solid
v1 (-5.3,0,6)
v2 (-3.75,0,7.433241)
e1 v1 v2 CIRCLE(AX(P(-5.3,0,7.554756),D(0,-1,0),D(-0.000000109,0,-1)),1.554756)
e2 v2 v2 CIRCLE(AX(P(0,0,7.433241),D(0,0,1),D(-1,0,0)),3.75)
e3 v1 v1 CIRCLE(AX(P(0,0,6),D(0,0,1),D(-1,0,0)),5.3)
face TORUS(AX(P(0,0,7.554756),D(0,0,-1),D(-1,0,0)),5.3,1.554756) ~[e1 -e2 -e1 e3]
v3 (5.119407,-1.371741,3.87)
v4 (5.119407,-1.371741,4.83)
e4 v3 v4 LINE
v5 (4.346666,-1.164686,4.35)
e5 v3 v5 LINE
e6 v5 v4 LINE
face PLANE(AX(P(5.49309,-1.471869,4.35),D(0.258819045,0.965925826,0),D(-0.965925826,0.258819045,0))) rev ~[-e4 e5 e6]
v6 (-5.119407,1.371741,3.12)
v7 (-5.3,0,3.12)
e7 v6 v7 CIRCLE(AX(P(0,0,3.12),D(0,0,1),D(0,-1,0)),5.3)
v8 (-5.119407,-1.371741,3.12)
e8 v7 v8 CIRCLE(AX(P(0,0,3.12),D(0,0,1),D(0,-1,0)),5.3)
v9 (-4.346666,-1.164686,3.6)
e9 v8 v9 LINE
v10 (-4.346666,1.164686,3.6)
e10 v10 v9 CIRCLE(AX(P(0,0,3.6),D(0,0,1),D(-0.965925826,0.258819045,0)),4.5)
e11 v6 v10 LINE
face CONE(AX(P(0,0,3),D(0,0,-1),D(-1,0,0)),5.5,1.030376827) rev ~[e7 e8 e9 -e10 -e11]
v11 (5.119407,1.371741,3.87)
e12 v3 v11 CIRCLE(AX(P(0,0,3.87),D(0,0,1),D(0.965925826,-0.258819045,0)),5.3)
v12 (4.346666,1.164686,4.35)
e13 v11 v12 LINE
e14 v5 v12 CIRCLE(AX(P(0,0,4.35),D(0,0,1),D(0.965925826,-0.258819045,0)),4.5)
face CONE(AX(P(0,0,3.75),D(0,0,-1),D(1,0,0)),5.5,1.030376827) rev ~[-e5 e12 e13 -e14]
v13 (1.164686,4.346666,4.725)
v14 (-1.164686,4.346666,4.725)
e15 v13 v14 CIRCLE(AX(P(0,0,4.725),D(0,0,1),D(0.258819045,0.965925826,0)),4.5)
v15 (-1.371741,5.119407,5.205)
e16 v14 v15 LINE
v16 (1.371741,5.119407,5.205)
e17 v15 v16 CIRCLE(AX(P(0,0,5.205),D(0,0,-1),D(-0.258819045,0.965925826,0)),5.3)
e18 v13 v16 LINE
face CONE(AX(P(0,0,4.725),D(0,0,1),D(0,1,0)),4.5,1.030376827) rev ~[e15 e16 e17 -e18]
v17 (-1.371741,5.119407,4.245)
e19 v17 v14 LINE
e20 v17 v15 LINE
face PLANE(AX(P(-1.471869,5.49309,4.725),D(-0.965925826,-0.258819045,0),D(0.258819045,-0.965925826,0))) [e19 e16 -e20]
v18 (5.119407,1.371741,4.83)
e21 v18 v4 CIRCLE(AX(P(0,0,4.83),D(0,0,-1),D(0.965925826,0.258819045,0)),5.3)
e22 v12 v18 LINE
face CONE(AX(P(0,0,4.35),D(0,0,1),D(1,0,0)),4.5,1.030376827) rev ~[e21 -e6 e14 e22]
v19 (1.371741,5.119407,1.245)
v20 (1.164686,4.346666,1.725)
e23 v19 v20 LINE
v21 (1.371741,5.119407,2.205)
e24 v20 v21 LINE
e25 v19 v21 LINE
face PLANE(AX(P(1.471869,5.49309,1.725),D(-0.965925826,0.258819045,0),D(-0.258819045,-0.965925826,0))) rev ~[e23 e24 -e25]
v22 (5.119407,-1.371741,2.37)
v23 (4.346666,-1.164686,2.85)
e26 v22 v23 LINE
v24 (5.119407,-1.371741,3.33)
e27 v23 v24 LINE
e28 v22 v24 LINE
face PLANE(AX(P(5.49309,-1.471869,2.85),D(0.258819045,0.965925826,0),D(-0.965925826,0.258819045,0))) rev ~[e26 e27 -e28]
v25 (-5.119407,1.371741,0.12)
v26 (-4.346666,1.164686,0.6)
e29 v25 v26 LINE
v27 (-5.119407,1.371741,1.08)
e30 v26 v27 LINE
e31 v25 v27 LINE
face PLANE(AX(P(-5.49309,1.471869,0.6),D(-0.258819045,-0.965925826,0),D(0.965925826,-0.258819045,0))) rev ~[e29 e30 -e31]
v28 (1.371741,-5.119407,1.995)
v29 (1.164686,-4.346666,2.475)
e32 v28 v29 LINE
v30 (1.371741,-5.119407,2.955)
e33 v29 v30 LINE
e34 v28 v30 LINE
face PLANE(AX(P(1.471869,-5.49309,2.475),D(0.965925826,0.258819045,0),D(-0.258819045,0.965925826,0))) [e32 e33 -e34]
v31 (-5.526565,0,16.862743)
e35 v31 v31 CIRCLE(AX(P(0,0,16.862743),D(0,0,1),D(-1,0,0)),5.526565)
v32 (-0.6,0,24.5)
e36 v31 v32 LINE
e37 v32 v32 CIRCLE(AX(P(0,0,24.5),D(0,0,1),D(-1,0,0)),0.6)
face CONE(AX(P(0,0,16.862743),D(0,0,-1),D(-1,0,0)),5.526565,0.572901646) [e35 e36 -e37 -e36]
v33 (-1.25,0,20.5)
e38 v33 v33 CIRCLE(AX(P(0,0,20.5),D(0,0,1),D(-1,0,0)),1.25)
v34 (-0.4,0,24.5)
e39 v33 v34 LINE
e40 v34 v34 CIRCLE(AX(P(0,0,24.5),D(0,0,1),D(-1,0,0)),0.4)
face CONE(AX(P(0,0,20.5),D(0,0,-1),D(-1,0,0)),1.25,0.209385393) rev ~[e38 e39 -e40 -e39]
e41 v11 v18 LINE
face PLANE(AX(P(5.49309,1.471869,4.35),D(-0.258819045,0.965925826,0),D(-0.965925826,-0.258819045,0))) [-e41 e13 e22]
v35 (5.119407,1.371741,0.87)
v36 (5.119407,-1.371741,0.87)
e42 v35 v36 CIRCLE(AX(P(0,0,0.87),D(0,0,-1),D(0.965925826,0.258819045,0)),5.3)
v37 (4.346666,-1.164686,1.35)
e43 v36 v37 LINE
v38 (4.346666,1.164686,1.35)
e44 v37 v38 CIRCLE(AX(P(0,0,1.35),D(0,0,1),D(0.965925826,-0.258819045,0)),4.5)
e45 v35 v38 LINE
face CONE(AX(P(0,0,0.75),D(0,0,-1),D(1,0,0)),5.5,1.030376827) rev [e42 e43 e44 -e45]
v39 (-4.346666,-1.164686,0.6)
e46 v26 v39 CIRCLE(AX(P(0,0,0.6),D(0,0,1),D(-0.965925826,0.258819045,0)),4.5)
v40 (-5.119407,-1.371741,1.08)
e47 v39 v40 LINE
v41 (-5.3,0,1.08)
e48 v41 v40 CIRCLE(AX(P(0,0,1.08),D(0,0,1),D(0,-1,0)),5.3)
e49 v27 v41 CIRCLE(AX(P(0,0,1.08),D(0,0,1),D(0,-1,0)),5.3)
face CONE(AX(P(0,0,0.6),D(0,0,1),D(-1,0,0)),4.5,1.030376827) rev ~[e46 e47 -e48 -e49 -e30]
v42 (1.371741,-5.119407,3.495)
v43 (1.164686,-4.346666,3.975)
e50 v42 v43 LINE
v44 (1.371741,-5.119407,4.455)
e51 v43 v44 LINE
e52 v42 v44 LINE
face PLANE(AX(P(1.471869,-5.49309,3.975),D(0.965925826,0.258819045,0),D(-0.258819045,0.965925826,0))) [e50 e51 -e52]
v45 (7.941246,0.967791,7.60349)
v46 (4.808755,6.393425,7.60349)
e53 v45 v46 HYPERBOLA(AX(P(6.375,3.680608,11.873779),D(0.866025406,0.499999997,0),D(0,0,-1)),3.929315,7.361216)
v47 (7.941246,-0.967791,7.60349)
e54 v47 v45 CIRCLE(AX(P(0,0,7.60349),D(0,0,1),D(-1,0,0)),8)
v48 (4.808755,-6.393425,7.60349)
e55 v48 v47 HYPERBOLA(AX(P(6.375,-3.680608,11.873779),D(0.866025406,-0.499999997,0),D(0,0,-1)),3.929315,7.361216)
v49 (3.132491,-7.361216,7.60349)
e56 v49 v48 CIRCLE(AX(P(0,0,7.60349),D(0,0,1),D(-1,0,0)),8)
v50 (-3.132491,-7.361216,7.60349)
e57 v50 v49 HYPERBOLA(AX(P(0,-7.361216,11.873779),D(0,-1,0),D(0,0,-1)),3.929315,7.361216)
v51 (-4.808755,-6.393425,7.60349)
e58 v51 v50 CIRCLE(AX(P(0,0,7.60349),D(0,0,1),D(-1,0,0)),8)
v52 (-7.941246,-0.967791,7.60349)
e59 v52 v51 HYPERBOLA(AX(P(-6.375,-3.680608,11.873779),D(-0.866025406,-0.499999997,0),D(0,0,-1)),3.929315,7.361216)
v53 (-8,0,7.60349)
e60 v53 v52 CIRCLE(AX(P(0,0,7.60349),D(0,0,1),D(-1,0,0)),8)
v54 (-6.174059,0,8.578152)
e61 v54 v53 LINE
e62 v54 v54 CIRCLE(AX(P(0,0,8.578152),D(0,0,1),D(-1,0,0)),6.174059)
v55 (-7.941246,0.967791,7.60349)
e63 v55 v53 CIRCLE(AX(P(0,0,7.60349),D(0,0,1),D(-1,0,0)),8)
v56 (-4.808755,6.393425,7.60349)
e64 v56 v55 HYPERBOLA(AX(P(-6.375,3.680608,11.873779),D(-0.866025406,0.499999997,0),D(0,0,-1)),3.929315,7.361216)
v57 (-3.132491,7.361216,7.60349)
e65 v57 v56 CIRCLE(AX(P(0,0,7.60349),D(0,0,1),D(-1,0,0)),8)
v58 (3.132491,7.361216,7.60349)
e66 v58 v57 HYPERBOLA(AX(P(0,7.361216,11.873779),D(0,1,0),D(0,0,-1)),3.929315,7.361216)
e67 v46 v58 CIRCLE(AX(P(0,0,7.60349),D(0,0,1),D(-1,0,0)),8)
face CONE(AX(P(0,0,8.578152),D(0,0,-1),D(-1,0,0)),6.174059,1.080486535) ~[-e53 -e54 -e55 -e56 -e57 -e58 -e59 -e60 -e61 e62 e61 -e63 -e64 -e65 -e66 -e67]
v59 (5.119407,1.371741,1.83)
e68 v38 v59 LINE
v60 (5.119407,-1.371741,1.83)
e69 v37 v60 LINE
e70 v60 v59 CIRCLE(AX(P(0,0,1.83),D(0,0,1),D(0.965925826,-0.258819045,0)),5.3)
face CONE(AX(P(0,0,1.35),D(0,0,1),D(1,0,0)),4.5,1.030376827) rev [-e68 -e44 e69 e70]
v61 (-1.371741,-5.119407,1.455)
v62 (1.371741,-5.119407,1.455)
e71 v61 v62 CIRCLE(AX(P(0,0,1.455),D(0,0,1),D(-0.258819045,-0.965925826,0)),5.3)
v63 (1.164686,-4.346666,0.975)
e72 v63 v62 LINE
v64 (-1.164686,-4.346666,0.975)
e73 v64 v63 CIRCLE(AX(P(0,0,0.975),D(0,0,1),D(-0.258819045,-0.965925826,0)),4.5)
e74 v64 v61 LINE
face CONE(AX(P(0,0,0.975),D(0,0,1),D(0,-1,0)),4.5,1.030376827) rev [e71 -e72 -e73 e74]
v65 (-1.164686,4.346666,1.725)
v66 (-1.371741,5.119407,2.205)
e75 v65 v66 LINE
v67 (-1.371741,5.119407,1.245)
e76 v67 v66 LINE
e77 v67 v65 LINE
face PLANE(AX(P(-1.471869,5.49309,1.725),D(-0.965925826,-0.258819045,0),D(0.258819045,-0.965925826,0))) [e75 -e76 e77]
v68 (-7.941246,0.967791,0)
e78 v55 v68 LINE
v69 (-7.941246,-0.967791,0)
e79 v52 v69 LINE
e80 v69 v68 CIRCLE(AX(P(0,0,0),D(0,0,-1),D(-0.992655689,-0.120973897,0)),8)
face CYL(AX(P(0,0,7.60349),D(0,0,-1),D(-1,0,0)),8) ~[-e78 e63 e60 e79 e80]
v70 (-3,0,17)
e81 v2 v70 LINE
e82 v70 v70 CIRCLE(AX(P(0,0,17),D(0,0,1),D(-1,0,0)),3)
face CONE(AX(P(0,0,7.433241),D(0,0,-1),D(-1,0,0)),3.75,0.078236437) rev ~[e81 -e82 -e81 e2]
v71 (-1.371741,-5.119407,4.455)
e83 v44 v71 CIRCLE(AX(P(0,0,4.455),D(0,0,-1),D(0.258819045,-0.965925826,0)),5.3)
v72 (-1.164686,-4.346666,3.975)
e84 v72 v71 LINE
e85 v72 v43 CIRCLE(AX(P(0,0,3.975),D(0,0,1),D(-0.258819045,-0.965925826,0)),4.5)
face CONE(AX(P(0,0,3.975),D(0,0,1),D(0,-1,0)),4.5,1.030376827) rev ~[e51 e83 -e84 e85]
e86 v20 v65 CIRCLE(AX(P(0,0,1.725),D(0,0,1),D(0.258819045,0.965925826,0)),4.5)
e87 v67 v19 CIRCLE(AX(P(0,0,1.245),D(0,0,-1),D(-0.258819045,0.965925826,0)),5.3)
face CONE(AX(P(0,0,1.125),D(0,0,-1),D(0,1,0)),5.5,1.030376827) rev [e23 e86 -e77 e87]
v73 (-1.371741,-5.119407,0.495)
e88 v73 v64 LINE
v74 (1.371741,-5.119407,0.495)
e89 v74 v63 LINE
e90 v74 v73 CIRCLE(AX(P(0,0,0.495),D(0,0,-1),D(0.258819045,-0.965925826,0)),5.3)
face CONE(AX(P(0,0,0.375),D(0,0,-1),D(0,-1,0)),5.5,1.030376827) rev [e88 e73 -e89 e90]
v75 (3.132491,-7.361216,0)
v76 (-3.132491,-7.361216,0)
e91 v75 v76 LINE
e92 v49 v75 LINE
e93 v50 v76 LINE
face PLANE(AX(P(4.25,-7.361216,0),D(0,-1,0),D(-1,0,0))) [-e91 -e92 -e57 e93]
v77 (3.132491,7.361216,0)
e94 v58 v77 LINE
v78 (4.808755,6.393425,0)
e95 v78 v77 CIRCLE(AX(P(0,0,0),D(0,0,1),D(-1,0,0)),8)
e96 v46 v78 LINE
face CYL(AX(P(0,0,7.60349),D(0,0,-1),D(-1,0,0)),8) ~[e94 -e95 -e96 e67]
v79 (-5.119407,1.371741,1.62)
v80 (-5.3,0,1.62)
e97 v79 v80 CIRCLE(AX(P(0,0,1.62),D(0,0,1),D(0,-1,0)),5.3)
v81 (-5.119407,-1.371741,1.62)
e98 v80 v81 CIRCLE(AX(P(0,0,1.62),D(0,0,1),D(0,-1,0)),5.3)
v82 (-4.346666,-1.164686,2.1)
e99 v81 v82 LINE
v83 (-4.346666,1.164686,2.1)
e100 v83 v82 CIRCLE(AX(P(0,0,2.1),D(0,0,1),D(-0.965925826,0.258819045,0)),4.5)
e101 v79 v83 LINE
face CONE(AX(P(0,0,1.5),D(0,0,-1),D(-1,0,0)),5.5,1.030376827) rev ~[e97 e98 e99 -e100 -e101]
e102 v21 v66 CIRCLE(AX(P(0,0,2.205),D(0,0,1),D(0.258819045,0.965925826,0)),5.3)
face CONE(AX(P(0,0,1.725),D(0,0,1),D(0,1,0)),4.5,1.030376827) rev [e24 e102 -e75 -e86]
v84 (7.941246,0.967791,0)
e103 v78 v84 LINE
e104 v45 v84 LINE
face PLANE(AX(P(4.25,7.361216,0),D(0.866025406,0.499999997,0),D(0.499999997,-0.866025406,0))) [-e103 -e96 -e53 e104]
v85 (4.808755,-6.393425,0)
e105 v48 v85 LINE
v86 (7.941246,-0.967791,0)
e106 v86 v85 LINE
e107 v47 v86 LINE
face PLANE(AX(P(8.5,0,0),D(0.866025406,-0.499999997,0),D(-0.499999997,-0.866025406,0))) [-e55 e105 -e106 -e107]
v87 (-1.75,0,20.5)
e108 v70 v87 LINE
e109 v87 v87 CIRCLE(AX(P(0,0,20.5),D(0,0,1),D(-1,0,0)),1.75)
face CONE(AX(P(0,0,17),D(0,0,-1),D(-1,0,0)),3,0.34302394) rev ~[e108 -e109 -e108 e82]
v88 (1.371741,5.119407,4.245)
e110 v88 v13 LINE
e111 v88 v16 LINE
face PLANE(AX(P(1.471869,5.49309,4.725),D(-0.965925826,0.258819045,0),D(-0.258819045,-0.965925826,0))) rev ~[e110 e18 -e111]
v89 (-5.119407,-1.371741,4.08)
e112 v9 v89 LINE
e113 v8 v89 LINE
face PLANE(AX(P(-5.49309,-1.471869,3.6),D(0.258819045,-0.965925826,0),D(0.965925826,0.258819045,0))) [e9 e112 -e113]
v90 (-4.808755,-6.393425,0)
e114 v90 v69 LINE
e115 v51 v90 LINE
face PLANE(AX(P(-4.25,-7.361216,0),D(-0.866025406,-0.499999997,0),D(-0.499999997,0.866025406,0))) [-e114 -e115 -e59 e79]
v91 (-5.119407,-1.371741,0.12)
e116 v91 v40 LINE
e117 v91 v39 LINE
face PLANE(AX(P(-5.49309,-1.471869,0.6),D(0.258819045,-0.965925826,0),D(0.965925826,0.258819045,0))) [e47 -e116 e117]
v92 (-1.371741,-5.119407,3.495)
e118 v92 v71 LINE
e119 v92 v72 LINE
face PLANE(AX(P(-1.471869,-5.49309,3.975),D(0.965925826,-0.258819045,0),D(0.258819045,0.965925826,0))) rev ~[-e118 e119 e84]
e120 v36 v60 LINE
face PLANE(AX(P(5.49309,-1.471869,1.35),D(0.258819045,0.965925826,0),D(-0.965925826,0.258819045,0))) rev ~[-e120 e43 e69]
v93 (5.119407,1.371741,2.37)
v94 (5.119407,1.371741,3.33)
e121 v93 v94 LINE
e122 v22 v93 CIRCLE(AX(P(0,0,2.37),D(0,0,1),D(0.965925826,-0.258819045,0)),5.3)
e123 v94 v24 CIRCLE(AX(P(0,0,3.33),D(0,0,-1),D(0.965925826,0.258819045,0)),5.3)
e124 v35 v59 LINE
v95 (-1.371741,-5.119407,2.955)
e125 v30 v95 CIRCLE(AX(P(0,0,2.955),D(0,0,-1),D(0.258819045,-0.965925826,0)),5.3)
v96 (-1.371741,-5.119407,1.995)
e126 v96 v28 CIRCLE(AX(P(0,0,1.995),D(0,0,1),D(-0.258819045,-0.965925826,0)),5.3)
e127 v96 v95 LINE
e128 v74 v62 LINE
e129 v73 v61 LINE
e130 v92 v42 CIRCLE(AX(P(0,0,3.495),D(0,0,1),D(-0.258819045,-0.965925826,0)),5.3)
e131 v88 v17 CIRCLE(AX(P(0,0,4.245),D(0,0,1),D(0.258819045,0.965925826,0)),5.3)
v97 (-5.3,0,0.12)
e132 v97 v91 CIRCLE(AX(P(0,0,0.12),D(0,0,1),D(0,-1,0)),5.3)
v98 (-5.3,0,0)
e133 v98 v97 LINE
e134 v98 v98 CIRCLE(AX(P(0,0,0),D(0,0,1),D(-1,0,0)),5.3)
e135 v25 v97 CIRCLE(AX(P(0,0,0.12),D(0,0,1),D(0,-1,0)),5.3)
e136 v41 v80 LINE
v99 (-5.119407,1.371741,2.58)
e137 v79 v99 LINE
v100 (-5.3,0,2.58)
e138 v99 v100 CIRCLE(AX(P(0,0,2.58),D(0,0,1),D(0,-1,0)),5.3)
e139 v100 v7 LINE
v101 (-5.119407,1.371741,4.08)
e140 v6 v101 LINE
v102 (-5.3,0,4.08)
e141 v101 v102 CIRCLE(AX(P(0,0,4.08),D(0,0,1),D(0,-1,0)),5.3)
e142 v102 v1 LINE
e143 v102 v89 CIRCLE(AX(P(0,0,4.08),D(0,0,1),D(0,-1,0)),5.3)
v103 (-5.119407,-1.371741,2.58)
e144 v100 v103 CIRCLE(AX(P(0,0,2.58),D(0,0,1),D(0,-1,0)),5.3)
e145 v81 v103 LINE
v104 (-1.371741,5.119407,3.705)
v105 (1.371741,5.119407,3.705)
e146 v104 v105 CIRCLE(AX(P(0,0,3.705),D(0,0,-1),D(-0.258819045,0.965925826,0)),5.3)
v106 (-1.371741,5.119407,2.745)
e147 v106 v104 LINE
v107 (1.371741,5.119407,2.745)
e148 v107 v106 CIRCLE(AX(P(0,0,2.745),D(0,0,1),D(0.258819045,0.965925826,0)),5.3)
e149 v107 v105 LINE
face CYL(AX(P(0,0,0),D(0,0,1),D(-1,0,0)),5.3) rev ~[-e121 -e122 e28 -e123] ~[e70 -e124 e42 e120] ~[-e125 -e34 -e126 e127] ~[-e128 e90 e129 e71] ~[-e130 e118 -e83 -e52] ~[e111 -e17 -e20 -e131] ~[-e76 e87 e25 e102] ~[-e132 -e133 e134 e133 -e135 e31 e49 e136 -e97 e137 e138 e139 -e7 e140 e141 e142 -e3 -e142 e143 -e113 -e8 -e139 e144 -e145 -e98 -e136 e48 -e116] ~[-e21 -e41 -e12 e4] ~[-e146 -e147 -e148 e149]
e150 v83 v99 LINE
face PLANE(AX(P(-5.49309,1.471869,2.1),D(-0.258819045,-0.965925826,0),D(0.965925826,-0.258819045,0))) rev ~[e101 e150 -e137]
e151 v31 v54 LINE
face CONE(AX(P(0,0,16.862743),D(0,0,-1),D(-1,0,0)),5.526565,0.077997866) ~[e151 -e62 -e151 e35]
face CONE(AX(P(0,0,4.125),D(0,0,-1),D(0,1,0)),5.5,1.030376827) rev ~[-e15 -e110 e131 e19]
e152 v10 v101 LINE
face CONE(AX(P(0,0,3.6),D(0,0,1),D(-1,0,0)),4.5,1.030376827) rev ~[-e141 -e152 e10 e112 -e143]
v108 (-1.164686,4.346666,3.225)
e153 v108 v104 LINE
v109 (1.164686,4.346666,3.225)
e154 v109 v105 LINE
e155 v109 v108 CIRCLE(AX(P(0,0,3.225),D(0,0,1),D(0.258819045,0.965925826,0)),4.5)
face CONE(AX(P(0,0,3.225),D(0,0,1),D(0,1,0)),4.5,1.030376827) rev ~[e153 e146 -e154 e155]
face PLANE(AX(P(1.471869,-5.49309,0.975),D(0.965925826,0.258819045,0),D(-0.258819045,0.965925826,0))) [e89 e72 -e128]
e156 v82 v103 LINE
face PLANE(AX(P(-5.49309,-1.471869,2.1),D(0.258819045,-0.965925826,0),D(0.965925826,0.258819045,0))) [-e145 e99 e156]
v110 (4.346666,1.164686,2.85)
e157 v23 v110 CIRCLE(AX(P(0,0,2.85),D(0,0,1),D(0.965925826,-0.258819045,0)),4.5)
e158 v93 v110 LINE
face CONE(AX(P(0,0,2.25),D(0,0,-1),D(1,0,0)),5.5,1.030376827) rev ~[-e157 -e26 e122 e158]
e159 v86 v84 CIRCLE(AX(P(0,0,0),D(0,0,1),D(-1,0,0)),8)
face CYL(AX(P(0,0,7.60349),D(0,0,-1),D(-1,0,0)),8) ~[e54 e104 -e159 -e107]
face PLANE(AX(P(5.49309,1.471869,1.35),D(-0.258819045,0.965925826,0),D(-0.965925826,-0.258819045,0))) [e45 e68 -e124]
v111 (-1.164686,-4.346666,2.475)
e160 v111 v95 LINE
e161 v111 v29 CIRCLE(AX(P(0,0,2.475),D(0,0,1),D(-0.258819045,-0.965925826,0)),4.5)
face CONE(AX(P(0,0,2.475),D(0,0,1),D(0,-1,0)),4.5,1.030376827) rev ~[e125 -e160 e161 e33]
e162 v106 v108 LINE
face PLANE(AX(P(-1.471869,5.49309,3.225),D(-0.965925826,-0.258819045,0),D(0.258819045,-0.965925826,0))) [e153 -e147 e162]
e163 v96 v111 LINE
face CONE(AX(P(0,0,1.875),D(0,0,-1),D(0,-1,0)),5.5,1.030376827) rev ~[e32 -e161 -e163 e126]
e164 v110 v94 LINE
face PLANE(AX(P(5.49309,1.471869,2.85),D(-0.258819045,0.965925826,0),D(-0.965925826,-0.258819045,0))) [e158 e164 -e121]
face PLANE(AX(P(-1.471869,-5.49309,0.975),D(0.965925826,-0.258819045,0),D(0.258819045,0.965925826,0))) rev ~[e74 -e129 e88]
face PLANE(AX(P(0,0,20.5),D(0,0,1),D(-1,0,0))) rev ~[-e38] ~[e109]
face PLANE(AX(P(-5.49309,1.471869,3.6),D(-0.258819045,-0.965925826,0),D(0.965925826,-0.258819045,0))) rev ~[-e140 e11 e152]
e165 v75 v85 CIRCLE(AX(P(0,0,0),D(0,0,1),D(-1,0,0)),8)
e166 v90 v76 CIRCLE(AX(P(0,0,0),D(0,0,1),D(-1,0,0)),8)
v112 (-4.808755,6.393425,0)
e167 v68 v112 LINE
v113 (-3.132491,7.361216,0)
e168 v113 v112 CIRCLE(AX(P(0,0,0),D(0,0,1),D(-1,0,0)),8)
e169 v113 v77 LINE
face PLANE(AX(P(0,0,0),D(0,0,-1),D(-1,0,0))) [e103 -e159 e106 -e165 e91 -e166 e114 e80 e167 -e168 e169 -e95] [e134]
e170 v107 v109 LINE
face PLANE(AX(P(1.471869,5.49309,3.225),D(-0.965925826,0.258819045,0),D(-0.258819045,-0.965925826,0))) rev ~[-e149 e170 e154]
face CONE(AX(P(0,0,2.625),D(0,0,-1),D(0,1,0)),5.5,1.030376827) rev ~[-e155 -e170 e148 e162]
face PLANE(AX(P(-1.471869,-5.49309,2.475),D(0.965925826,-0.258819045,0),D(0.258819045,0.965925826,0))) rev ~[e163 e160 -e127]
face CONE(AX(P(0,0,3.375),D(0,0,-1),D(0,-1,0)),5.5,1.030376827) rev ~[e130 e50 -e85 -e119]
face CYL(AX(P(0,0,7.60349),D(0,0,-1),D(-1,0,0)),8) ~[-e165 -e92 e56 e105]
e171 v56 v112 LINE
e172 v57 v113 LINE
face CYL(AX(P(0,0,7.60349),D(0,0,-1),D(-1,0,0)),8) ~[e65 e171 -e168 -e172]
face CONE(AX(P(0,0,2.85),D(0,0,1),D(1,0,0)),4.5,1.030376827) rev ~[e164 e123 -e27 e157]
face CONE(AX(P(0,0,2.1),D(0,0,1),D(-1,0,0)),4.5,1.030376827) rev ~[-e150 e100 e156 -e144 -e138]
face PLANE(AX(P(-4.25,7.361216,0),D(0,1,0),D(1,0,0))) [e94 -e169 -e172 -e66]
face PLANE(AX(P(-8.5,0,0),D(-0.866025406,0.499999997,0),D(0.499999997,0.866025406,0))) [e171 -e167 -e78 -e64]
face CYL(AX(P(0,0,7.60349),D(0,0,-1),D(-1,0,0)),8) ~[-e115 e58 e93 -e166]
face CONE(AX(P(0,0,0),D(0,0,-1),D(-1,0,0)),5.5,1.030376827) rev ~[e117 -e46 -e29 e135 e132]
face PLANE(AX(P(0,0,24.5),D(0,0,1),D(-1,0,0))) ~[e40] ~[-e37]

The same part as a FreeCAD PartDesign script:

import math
import FreeCAD as App
import Part
import Sketcher

V = App.Vector
Q = App.Units.Quantity


def add_polygon(sketch, points):
    """Adds a closed chain of lines whose ends are joined by coincident constraints."""
    first, n = sketch.GeometryCount, len(points)
    for a, b in zip(points, points[1:] + points[:1]):
        sketch.addGeometry(Part.LineSegment(App.Vector(*a, 0), App.Vector(*b, 0)), False)
    for i in range(n):
        sketch.addConstraint(Sketcher.Constraint("Coincident", first + i, 2, first + (i + 1) % n, 1))

doc = App.newDocument("Part")
body = doc.addObject("PartDesign::Body", "Body")

sketch1 = body.newObject("Sketcher::SketchObject", "Sketch")
sketch1.AttachmentSupport = (doc.getObject("XZ_Plane"), [""])
sketch1.MapMode = "FlatFace"
sketch1.addGeometry(Part.LineSegment(V(-5.3, 0, 0), V(-5.3, 6, 0)), False)
sketch1.addGeometry(Part.ArcOfCircle(Part.Circle(V(-5.3, 7.55, 0), V(0, 0, 1), 1.55), math.radians(-90), math.radians(-4)), False)
sketch1.addGeometry(Part.LineSegment(V(-3.75, 7.43, 0), V(-3, 17, 0)), False)
sketch1.addGeometry(Part.LineSegment(V(-3, 17, 0), V(-1.75, 20.5, 0)), False)
sketch1.addGeometry(Part.LineSegment(V(-1.75, 20.5, 0), V(-1.25, 20.5, 0)), False)
sketch1.addGeometry(Part.LineSegment(V(-1.25, 20.5, 0), V(-0.4, 24.5, 0)), False)
sketch1.addGeometry(Part.LineSegment(V(-0.4, 24.5, 0), V(-0.6, 24.5, 0)), False)
sketch1.addGeometry(Part.LineSegment(V(-0.6, 24.5, 0), V(-5.53, 16.86, 0)), False)
sketch1.addGeometry(Part.LineSegment(V(-5.53, 16.86, 0), V(-6.17, 8.58, 0)), False)
sketch1.addGeometry(Part.LineSegment(V(-6.17, 8.58, 0), V(-8, 7.6, 0)), False)
sketch1.addGeometry(Part.LineSegment(V(-8, 7.6, 0), V(-8, 0, 0)), False)
sketch1.addGeometry(Part.LineSegment(V(-8, 0, 0), V(-5.3, 0, 0)), False)
sketch1.addConstraint(Sketcher.Constraint("Coincident", 0, 2, 1, 1))
sketch1.addConstraint(Sketcher.Constraint("Tangent", 1, 2, 2, 1))
sketch1.addConstraint(Sketcher.Constraint("Coincident", 2, 2, 3, 1))
sketch1.addConstraint(Sketcher.Constraint("Coincident", 3, 2, 4, 1))
sketch1.addConstraint(Sketcher.Constraint("Coincident", 4, 2, 5, 1))
sketch1.addConstraint(Sketcher.Constraint("Coincident", 5, 2, 6, 1))
sketch1.addConstraint(Sketcher.Constraint("Coincident", 6, 2, 7, 1))
sketch1.addConstraint(Sketcher.Constraint("Coincident", 7, 2, 8, 1))
sketch1.addConstraint(Sketcher.Constraint("Coincident", 8, 2, 9, 1))
sketch1.addConstraint(Sketcher.Constraint("Coincident", 9, 2, 10, 1))
sketch1.addConstraint(Sketcher.Constraint("Coincident", 10, 2, 11, 1))
sketch1.addConstraint(Sketcher.Constraint("Coincident", 11, 2, 0, 1))
sketch1.addConstraint(Sketcher.Constraint("Vertical", 0))
sketch1.addConstraint(Sketcher.Constraint("Horizontal", 4))
sketch1.addConstraint(Sketcher.Constraint("Horizontal", 6))
sketch1.addConstraint(Sketcher.Constraint("Vertical", 10))
sketch1.addConstraint(Sketcher.Constraint("Horizontal", 11))
sketch1.addConstraint(Sketcher.Constraint("PointOnObject", 10, 2, -1))
sketch1.addConstraint(Sketcher.Constraint("Vertical", 1, 3, 0, 2))
sketch1.addConstraint(Sketcher.Constraint("DistanceY", 0, 1, 0, 2, Q("6 mm")))
sketch1.addConstraint(Sketcher.Constraint("DistanceX", 4, 1, 4, 2, Q("0.5 mm")))
sketch1.addConstraint(Sketcher.Constraint("DistanceX", 6, 2, 6, 1, Q("0.2 mm")))
sketch1.addConstraint(Sketcher.Constraint("DistanceX", 11, 1, 11, 2, Q("2.7 mm")))
sketch1.addConstraint(Sketcher.Constraint("DistanceX", 2, 2, -1, 1, Q("3 mm")))
sketch1.addConstraint(Sketcher.Constraint("DistanceY", -1, 1, 2, 2, Q("17 mm")))
sketch1.addConstraint(Sketcher.Constraint("DistanceX", 9, 2, -1, 1, Q("8 mm")))
sketch1.addConstraint(Sketcher.Constraint("DistanceX", 1, 2, 3, 2, Q("2 mm")))
sketch1.addConstraint(Sketcher.Constraint("DistanceY", 4, 2, 5, 2, Q("4 mm")))
sketch1.addConstraint(Sketcher.Constraint("DistanceY", -1, 1, 3, 2, Q("20.5 mm")))
sketch1.addConstraint(Sketcher.Constraint("DistanceX", 5, 2, -1, 1, Q("0.4 mm")))
sketch1.addConstraint(Sketcher.Constraint("DistanceX", 1, 2, -1, 1, Q("3.75 mm")))
sketch1.addConstraint(Sketcher.Constraint("DistanceY", 10, 2, 10, 1, Q("7.60349 mm")))
sketch1.addConstraint(Sketcher.Constraint("Distance", 9, Q("2.069789 mm")))
sketch1.addConstraint(Sketcher.Constraint("DistanceX", 8, 2, -1, 1, Q("6.174059 mm")))
sketch1.addConstraint(Sketcher.Constraint("DistanceY", 8, 2, 7, 2, Q("8.284591 mm")))
sketch1.addConstraint(Sketcher.Constraint("Distance", 7, Q("9.088385 mm")))
revolution = body.newObject("PartDesign::Revolution", "Revolution")
revolution.Profile = sketch1
revolution.ReferenceAxis = (sketch1, ["V_Axis"])
revolution.Angle = 360

sketch2 = body.newObject("Sketcher::SketchObject", "Sketch001")
sketch2.AttachmentSupport = (doc.getObject("XY_Plane"), [""])
sketch2.MapMode = "FlatFace"
sketch2.addGeometry(Part.Circle(V(0, 0, 0), V(0, 0, 1), 14), False)
add_polygon(sketch2, [(4, -7), (8, 0), (4, 7), (-4, 7), (-8, 0), (-4, -7)])
sketch2.addConstraint(Sketcher.Constraint("Horizontal", 3))
sketch2.addConstraint(Sketcher.Constraint("Horizontal", 6))
sketch2.addConstraint(Sketcher.Constraint("Coincident", 0, 3, -1, 1))
sketch2.addConstraint(Sketcher.Constraint("Symmetric", 1, 2, 4, 2, -1, 1))
sketch2.addConstraint(Sketcher.Constraint("Symmetric", 2, 2, 5, 2, -1, 1))
sketch2.addConstraint(Sketcher.Constraint("PointOnObject", 1, 2, -1))
sketch2.addConstraint(Sketcher.Constraint("Parallel", 1, 4))
sketch2.addConstraint(Sketcher.Constraint("Vertical", 3, 2, 5, 2))
sketch2.addConstraint(Sketcher.Constraint("Angle", 1, Q("60 deg")))
sketch2.addConstraint(Sketcher.Constraint("DistanceX", 3, 2, 3, 1, Q("8.5 mm")))
sketch2.addConstraint(Sketcher.Constraint("DistanceX", 4, 2, 1, 2, Q("17 mm")))
sketch2.addConstraint(Sketcher.Constraint("Diameter", 0, Q("28.583088 mm")))
pocket1 = body.newObject("PartDesign::Pocket", "Pocket")
pocket1.Profile = sketch2
pocket1.Type = "ThroughAll"
pocket1.Reversed = True

sketch3 = body.newObject("Sketcher::SketchObject", "Sketch002")
sketch3.AttachmentSupport = (doc.getObject("XZ_Plane"), [""])
sketch3.MapMode = "FlatFace"
add_polygon(sketch3, [(-5.5, 0), (-4.5, 0.6), (-5.5, 1.2), (-6.5, 1.2), (-6.5, 0)])
add_polygon(sketch3, [(-5.5, 1.5), (-4.5, 2.1), (-5.5, 2.7), (-6.5, 2.7), (-6.5, 1.5)])
add_polygon(sketch3, [(-5.5, 3), (-4.5, 3.6), (-5.5, 4.2), (-6.5, 4.2), (-6.5, 3)])
sketch3.addConstraint(Sketcher.Constraint("Horizontal", 2))
sketch3.addConstraint(Sketcher.Constraint("Vertical", 3))
sketch3.addConstraint(Sketcher.Constraint("Horizontal", 4))
sketch3.addConstraint(Sketcher.Constraint("Horizontal", 7))
sketch3.addConstraint(Sketcher.Constraint("Vertical", 8))
sketch3.addConstraint(Sketcher.Constraint("Horizontal", 9))
sketch3.addConstraint(Sketcher.Constraint("Horizontal", 12))
sketch3.addConstraint(Sketcher.Constraint("Vertical", 13))
sketch3.addConstraint(Sketcher.Constraint("Horizontal", 14))
sketch3.addConstraint(Sketcher.Constraint("PointOnObject", 3, 2, -1))
sketch3.addConstraint(Sketcher.Constraint("Parallel", 0, 5))
sketch3.addConstraint(Sketcher.Constraint("Parallel", 1, 6))
sketch3.addConstraint(Sketcher.Constraint("Parallel", 5, 10))
sketch3.addConstraint(Sketcher.Constraint("Parallel", 6, 11))
sketch3.addConstraint(Sketcher.Constraint("Vertical", 1, 2, 4, 2))
sketch3.addConstraint(Sketcher.Constraint("Vertical", 0, 2, 5, 2))
sketch3.addConstraint(Sketcher.Constraint("Vertical", 4, 2, 6, 2))
sketch3.addConstraint(Sketcher.Constraint("Vertical", 3, 2, 7, 2))
sketch3.addConstraint(Sketcher.Constraint("Vertical", 6, 2, 9, 2))
sketch3.addConstraint(Sketcher.Constraint("Vertical", 5, 2, 10, 2))
sketch3.addConstraint(Sketcher.Constraint("Vertical", 9, 2, 11, 2))
sketch3.addConstraint(Sketcher.Constraint("Vertical", 8, 2, 12, 2))
sketch3.addConstraint(Sketcher.Constraint("Vertical", 11, 2, 14, 2))
sketch3.addConstraint(Sketcher.Constraint("Equal", 0, 1))
sketch3.addConstraint(Sketcher.Constraint("DistanceX", 2, 2, 2, 1, Q("1 mm")))
sketch3.addConstraint(Sketcher.Constraint("DistanceY", 3, 2, 3, 1, Q("1.2 mm")))
sketch3.addConstraint(Sketcher.Constraint("DistanceY", -1, 1, 13, 2, Q("3 mm")))
sketch3.addConstraint(Sketcher.Constraint("DistanceX", 1, 2, 0, 2, Q("1 mm")))
sketch3.addConstraint(Sketcher.Constraint("DistanceX", 0, 2, -1, 1, Q("4.5 mm")))
sketch3.addConstraint(Sketcher.Constraint("DistanceY", -1, 1, 5, 2, Q("2.1 mm")))
revolution2 = body.newObject("PartDesign::Revolution", "Revolution001")
revolution2.Profile = sketch3
revolution2.ReferenceAxis = (sketch3, ["V_Axis"])
revolution2.Angle = 15

sketch4 = body.newObject("Sketcher::SketchObject", "Sketch003")
sketch4.AttachmentSupport = (doc.getObject("XZ_Plane"), [""])
sketch4.MapMode = "FlatFace"
add_polygon(sketch4, [(-5.5, 0), (-4.5, 0.6), (-5.5, 1.2), (-6.5, 1.2), (-6.5, 0)])
add_polygon(sketch4, [(-5.5, 1.5), (-4.5, 2.1), (-5.5, 2.7), (-6.5, 2.7), (-6.5, 1.5)])
add_polygon(sketch4, [(-5.5, 3), (-4.5, 3.6), (-5.5, 4.2), (-6.5, 4.2), (-6.5, 3)])
sketch4.addConstraint(Sketcher.Constraint("Horizontal", 2))
sketch4.addConstraint(Sketcher.Constraint("Vertical", 3))
sketch4.addConstraint(Sketcher.Constraint("Horizontal", 4))
sketch4.addConstraint(Sketcher.Constraint("Horizontal", 7))
sketch4.addConstraint(Sketcher.Constraint("Vertical", 8))
sketch4.addConstraint(Sketcher.Constraint("Horizontal", 9))
sketch4.addConstraint(Sketcher.Constraint("Horizontal", 12))
sketch4.addConstraint(Sketcher.Constraint("Vertical", 13))
sketch4.addConstraint(Sketcher.Constraint("Horizontal", 14))
sketch4.addConstraint(Sketcher.Constraint("PointOnObject", 3, 2, -1))
sketch4.addConstraint(Sketcher.Constraint("Parallel", 0, 5))
sketch4.addConstraint(Sketcher.Constraint("Parallel", 1, 6))
sketch4.addConstraint(Sketcher.Constraint("Parallel", 5, 10))
sketch4.addConstraint(Sketcher.Constraint("Parallel", 6, 11))
sketch4.addConstraint(Sketcher.Constraint("Vertical", 1, 2, 4, 2))
sketch4.addConstraint(Sketcher.Constraint("Vertical", 0, 2, 5, 2))
sketch4.addConstraint(Sketcher.Constraint("Vertical", 4, 2, 6, 2))
sketch4.addConstraint(Sketcher.Constraint("Vertical", 3, 2, 7, 2))
sketch4.addConstraint(Sketcher.Constraint("Vertical", 6, 2, 9, 2))
sketch4.addConstraint(Sketcher.Constraint("Vertical", 5, 2, 10, 2))
sketch4.addConstraint(Sketcher.Constraint("Vertical", 9, 2, 11, 2))
sketch4.addConstraint(Sketcher.Constraint("Vertical", 8, 2, 12, 2))
sketch4.addConstraint(Sketcher.Constraint("Vertical", 11, 2, 14, 2))
sketch4.addConstraint(Sketcher.Constraint("Equal", 0, 1))
sketch4.addConstraint(Sketcher.Constraint("DistanceX", 2, 2, 2, 1, Q("1 mm")))
sketch4.addConstraint(Sketcher.Constraint("DistanceY", 3, 2, 3, 1, Q("1.2 mm")))
sketch4.addConstraint(Sketcher.Constraint("DistanceY", -1, 1, 13, 2, Q("3 mm")))
sketch4.addConstraint(Sketcher.Constraint("DistanceX", 1, 2, 0, 2, Q("1 mm")))
sketch4.addConstraint(Sketcher.Constraint("DistanceX", 0, 2, -1, 1, Q("4.5 mm")))
sketch4.addConstraint(Sketcher.Constraint("DistanceY", -1, 1, 5, 2, Q("2.1 mm")))
revolution3 = body.newObject("PartDesign::Revolution", "Revolution002")
revolution3.Profile = sketch4
revolution3.ReferenceAxis = (sketch4, ["V_Axis"])
revolution3.Angle = 15
revolution3.Reversed = True

sketch5 = body.newObject("Sketcher::SketchObject", "Sketch004")
sketch5.AttachmentSupport = (doc.getObject("YZ_Plane"), [""])
sketch5.MapMode = "FlatFace"
add_polygon(sketch5, [(-5.5, 0.4), (-4.5, 1), (-5.5, 1.6), (-6.5, 1.6), (-6.5, 0.4)])
add_polygon(sketch5, [(-5.5, 1.9), (-4.5, 2.5), (-5.5, 3.1), (-6.5, 3.1), (-6.5, 1.9)])
add_polygon(sketch5, [(-5.5, 3.4), (-4.5, 4), (-5.5, 4.6), (-6.5, 4.6), (-6.5, 3.4)])
sketch5.addConstraint(Sketcher.Constraint("Horizontal", 2))
sketch5.addConstraint(Sketcher.Constraint("Vertical", 3))
sketch5.addConstraint(Sketcher.Constraint("Horizontal", 4))
sketch5.addConstraint(Sketcher.Constraint("Horizontal", 7))
sketch5.addConstraint(Sketcher.Constraint("Vertical", 8))
sketch5.addConstraint(Sketcher.Constraint("Horizontal", 9))
sketch5.addConstraint(Sketcher.Constraint("Horizontal", 12))
sketch5.addConstraint(Sketcher.Constraint("Vertical", 13))
sketch5.addConstraint(Sketcher.Constraint("Horizontal", 14))
sketch5.addConstraint(Sketcher.Constraint("Parallel", 0, 5))
sketch5.addConstraint(Sketcher.Constraint("Parallel", 1, 6))
sketch5.addConstraint(Sketcher.Constraint("Parallel", 5, 10))
sketch5.addConstraint(Sketcher.Constraint("Parallel", 6, 11))
sketch5.addConstraint(Sketcher.Constraint("Vertical", 1, 2, 4, 2))
sketch5.addConstraint(Sketcher.Constraint("Vertical", 0, 2, 5, 2))
sketch5.addConstraint(Sketcher.Constraint("Vertical", 4, 2, 6, 2))
sketch5.addConstraint(Sketcher.Constraint("Vertical", 3, 2, 7, 2))
sketch5.addConstraint(Sketcher.Constraint("Vertical", 6, 2, 9, 2))
sketch5.addConstraint(Sketcher.Constraint("Vertical", 5, 2, 10, 2))
sketch5.addConstraint(Sketcher.Constraint("Vertical", 9, 2, 11, 2))
sketch5.addConstraint(Sketcher.Constraint("Vertical", 8, 2, 12, 2))
sketch5.addConstraint(Sketcher.Constraint("Vertical", 11, 2, 14, 2))
sketch5.addConstraint(Sketcher.Constraint("Equal", 0, 1))
sketch5.addConstraint(Sketcher.Constraint("DistanceX", 2, 2, 2, 1, Q("1 mm")))
sketch5.addConstraint(Sketcher.Constraint("DistanceY", 3, 2, 3, 1, Q("1.2 mm")))
sketch5.addConstraint(Sketcher.Constraint("DistanceX", 1, 2, 0, 2, Q("1 mm")))
sketch5.addConstraint(Sketcher.Constraint("DistanceX", 0, 2, -1, 1, Q("4.5 mm")))
sketch5.addConstraint(Sketcher.Constraint("DistanceY", 1, 2, 5, 2, Q("0.9 mm")))
sketch5.addConstraint(Sketcher.Constraint("DistanceY", 6, 2, 10, 2, Q("0.9 mm")))
sketch5.addConstraint(Sketcher.Constraint("DistanceY", -1, 1, 0, 2, Q("0.975 mm")))
revolution4 = body.newObject("PartDesign::Revolution", "Revolution003")
revolution4.Profile = sketch5
revolution4.ReferenceAxis = (sketch5, ["V_Axis"])
revolution4.Angle = 15

sketch6 = body.newObject("Sketcher::SketchObject", "Sketch005")
sketch6.AttachmentSupport = (doc.getObject("YZ_Plane"), [""])
sketch6.MapMode = "FlatFace"
add_polygon(sketch6, [(-5.5, 0.4), (-4.5, 1), (-5.5, 1.6), (-6.5, 1.6), (-6.5, 0.4)])
add_polygon(sketch6, [(-5.5, 1.9), (-4.5, 2.5), (-5.5, 3.1), (-6.5, 3.1), (-6.5, 1.9)])
add_polygon(sketch6, [(-5.5, 3.4), (-4.5, 4), (-5.5, 4.6), (-6.5, 4.6), (-6.5, 3.4)])
sketch6.addConstraint(Sketcher.Constraint("Horizontal", 2))
sketch6.addConstraint(Sketcher.Constraint("Vertical", 3))
sketch6.addConstraint(Sketcher.Constraint("Horizontal", 4))
sketch6.addConstraint(Sketcher.Constraint("Horizontal", 7))
sketch6.addConstraint(Sketcher.Constraint("Vertical", 8))
sketch6.addConstraint(Sketcher.Constraint("Horizontal", 9))
sketch6.addConstraint(Sketcher.Constraint("Horizontal", 12))
sketch6.addConstraint(Sketcher.Constraint("Vertical", 13))
sketch6.addConstraint(Sketcher.Constraint("Horizontal", 14))
sketch6.addConstraint(Sketcher.Constraint("Parallel", 0, 5))
sketch6.addConstraint(Sketcher.Constraint("Parallel", 1, 6))
sketch6.addConstraint(Sketcher.Constraint("Parallel", 5, 10))
sketch6.addConstraint(Sketcher.Constraint("Parallel", 6, 11))
sketch6.addConstraint(Sketcher.Constraint("Vertical", 1, 2, 4, 2))
sketch6.addConstraint(Sketcher.Constraint("Vertical", 0, 2, 5, 2))
sketch6.addConstraint(Sketcher.Constraint("Vertical", 4, 2, 6, 2))
sketch6.addConstraint(Sketcher.Constraint("Vertical", 3, 2, 7, 2))
sketch6.addConstraint(Sketcher.Constraint("Vertical", 6, 2, 9, 2))
sketch6.addConstraint(Sketcher.Constraint("Vertical", 5, 2, 10, 2))
sketch6.addConstraint(Sketcher.Constraint("Vertical", 9, 2, 11, 2))
sketch6.addConstraint(Sketcher.Constraint("Vertical", 8, 2, 12, 2))
sketch6.addConstraint(Sketcher.Constraint("Vertical", 11, 2, 14, 2))
sketch6.addConstraint(Sketcher.Constraint("Equal", 0, 1))
sketch6.addConstraint(Sketcher.Constraint("DistanceX", 2, 2, 2, 1, Q("1 mm")))
sketch6.addConstraint(Sketcher.Constraint("DistanceY", 3, 2, 3, 1, Q("1.2 mm")))
sketch6.addConstraint(Sketcher.Constraint("DistanceX", 1, 2, 0, 2, Q("1 mm")))
sketch6.addConstraint(Sketcher.Constraint("DistanceX", 0, 2, -1, 1, Q("4.5 mm")))
sketch6.addConstraint(Sketcher.Constraint("DistanceY", 1, 2, 5, 2, Q("0.9 mm")))
sketch6.addConstraint(Sketcher.Constraint("DistanceY", 6, 2, 10, 2, Q("0.9 mm")))
sketch6.addConstraint(Sketcher.Constraint("DistanceY", -1, 1, 0, 2, Q("0.975 mm")))
revolution5 = body.newObject("PartDesign::Revolution", "Revolution004")
revolution5.Profile = sketch6
revolution5.ReferenceAxis = (sketch6, ["V_Axis"])
revolution5.Angle = 15
revolution5.Reversed = True

sketch7 = body.newObject("Sketcher::SketchObject", "Sketch006")
sketch7.AttachmentSupport = (doc.getObject("XZ_Plane"), [""])
sketch7.MapMode = "FlatFace"
add_polygon(sketch7, [(5.5, 0.8), (4.5, 1.4), (5.5, 1.9), (6.5, 1.9), (6.5, 0.8)])
add_polygon(sketch7, [(5.5, 2.2), (4.5, 2.9), (5.5, 3.5), (6.5, 3.5), (6.5, 2.2)])
add_polygon(sketch7, [(5.5, 3.8), (4.5, 4.3), (5.5, 5), (6.5, 5), (6.5, 3.8)])
sketch7.addConstraint(Sketcher.Constraint("Horizontal", 2))
sketch7.addConstraint(Sketcher.Constraint("Vertical", 3))
sketch7.addConstraint(Sketcher.Constraint("Horizontal", 4))
sketch7.addConstraint(Sketcher.Constraint("Horizontal", 7))
sketch7.addConstraint(Sketcher.Constraint("Vertical", 8))
sketch7.addConstraint(Sketcher.Constraint("Horizontal", 9))
sketch7.addConstraint(Sketcher.Constraint("Horizontal", 12))
sketch7.addConstraint(Sketcher.Constraint("Vertical", 13))
sketch7.addConstraint(Sketcher.Constraint("Horizontal", 14))
sketch7.addConstraint(Sketcher.Constraint("Parallel", 0, 5))
sketch7.addConstraint(Sketcher.Constraint("Parallel", 1, 6))
sketch7.addConstraint(Sketcher.Constraint("Parallel", 5, 10))
sketch7.addConstraint(Sketcher.Constraint("Parallel", 6, 11))
sketch7.addConstraint(Sketcher.Constraint("Vertical", 1, 2, 4, 2))
sketch7.addConstraint(Sketcher.Constraint("Vertical", 0, 2, 5, 2))
sketch7.addConstraint(Sketcher.Constraint("Vertical", 4, 2, 6, 2))
sketch7.addConstraint(Sketcher.Constraint("Vertical", 3, 2, 7, 2))
sketch7.addConstraint(Sketcher.Constraint("Vertical", 6, 2, 9, 2))
sketch7.addConstraint(Sketcher.Constraint("Vertical", 5, 2, 10, 2))
sketch7.addConstraint(Sketcher.Constraint("Vertical", 9, 2, 11, 2))
sketch7.addConstraint(Sketcher.Constraint("Vertical", 8, 2, 12, 2))
sketch7.addConstraint(Sketcher.Constraint("Vertical", 11, 2, 14, 2))
sketch7.addConstraint(Sketcher.Constraint("Equal", 0, 1))
sketch7.addConstraint(Sketcher.Constraint("DistanceX", 2, 1, 2, 2, Q("1 mm")))
sketch7.addConstraint(Sketcher.Constraint("DistanceY", 3, 2, 3, 1, Q("1.2 mm")))
sketch7.addConstraint(Sketcher.Constraint("DistanceX", 0, 2, 1, 2, Q("1 mm")))
sketch7.addConstraint(Sketcher.Constraint("DistanceX", -1, 1, 0, 2, Q("4.5 mm")))
sketch7.addConstraint(Sketcher.Constraint("DistanceY", 1, 2, 5, 2, Q("0.9 mm")))
sketch7.addConstraint(Sketcher.Constraint("DistanceY", 6, 2, 10, 2, Q("0.9 mm")))
sketch7.addConstraint(Sketcher.Constraint("DistanceY", -1, 1, 0, 2, Q("1.35 mm")))
revolution6 = body.newObject("PartDesign::Revolution", "Revolution005")
revolution6.Profile = sketch7
revolution6.ReferenceAxis = (sketch7, ["V_Axis"])
revolution6.Angle = 15

sketch8 = body.newObject("Sketcher::SketchObject", "Sketch007")
sketch8.AttachmentSupport = (doc.getObject("XZ_Plane"), [""])
sketch8.MapMode = "FlatFace"
add_polygon(sketch8, [(5.5, 0.8), (4.5, 1.4), (5.5, 1.9), (6.5, 1.9), (6.5, 0.8)])
add_polygon(sketch8, [(5.5, 2.2), (4.5, 2.9), (5.5, 3.5), (6.5, 3.5), (6.5, 2.2)])
add_polygon(sketch8, [(5.5, 3.8), (4.5, 4.3), (5.5, 5), (6.5, 5), (6.5, 3.8)])
sketch8.addConstraint(Sketcher.Constraint("Horizontal", 2))
sketch8.addConstraint(Sketcher.Constraint("Vertical", 3))
sketch8.addConstraint(Sketcher.Constraint("Horizontal", 4))
sketch8.addConstraint(Sketcher.Constraint("Horizontal", 7))
sketch8.addConstraint(Sketcher.Constraint("Vertical", 8))
sketch8.addConstraint(Sketcher.Constraint("Horizontal", 9))
sketch8.addConstraint(Sketcher.Constraint("Horizontal", 12))
sketch8.addConstraint(Sketcher.Constraint("Vertical", 13))
sketch8.addConstraint(Sketcher.Constraint("Horizontal", 14))
sketch8.addConstraint(Sketcher.Constraint("Parallel", 0, 5))
sketch8.addConstraint(Sketcher.Constraint("Parallel", 1, 6))
sketch8.addConstraint(Sketcher.Constraint("Parallel", 5, 10))
sketch8.addConstraint(Sketcher.Constraint("Parallel", 6, 11))
sketch8.addConstraint(Sketcher.Constraint("Vertical", 1, 2, 4, 2))
sketch8.addConstraint(Sketcher.Constraint("Vertical", 0, 2, 5, 2))
sketch8.addConstraint(Sketcher.Constraint("Vertical", 4, 2, 6, 2))
sketch8.addConstraint(Sketcher.Constraint("Vertical", 3, 2, 7, 2))
sketch8.addConstraint(Sketcher.Constraint("Vertical", 6, 2, 9, 2))
sketch8.addConstraint(Sketcher.Constraint("Vertical", 5, 2, 10, 2))
sketch8.addConstraint(Sketcher.Constraint("Vertical", 9, 2, 11, 2))
sketch8.addConstraint(Sketcher.Constraint("Vertical", 8, 2, 12, 2))
sketch8.addConstraint(Sketcher.Constraint("Vertical", 11, 2, 14, 2))
sketch8.addConstraint(Sketcher.Constraint("Equal", 0, 1))
sketch8.addConstraint(Sketcher.Constraint("DistanceX", 2, 1, 2, 2, Q("1 mm")))
sketch8.addConstraint(Sketcher.Constraint("DistanceY", 3, 2, 3, 1, Q("1.2 mm")))
sketch8.addConstraint(Sketcher.Constraint("DistanceX", 0, 2, 1, 2, Q("1 mm")))
sketch8.addConstraint(Sketcher.Constraint("DistanceX", -1, 1, 0, 2, Q("4.5 mm")))
sketch8.addConstraint(Sketcher.Constraint("DistanceY", 1, 2, 5, 2, Q("0.9 mm")))
sketch8.addConstraint(Sketcher.Constraint("DistanceY", 6, 2, 10, 2, Q("0.9 mm")))
sketch8.addConstraint(Sketcher.Constraint("DistanceY", -1, 1, 0, 2, Q("1.35 mm")))
revolution7 = body.newObject("PartDesign::Revolution", "Revolution006")
revolution7.Profile = sketch8
revolution7.ReferenceAxis = (sketch8, ["V_Axis"])
revolution7.Angle = 15
revolution7.Reversed = True

sketch9 = body.newObject("Sketcher::SketchObject", "Sketch008")
sketch9.AttachmentSupport = (doc.getObject("YZ_Plane"), [""])
sketch9.MapMode = "FlatFace"
add_polygon(sketch9, [(5.5, 1.1), (4.5, 1.7), (5.5, 2.3), (6.5, 2.3), (6.5, 1.1)])
add_polygon(sketch9, [(5.5, 2.6), (4.5, 3.2), (5.5, 3.8), (6.5, 3.8), (6.5, 2.6)])
add_polygon(sketch9, [(5.5, 4.1), (4.5, 4.7), (5.5, 5.3), (6.5, 5.3), (6.5, 4.1)])
sketch9.addConstraint(Sketcher.Constraint("Horizontal", 2))
sketch9.addConstraint(Sketcher.Constraint("Vertical", 3))
sketch9.addConstraint(Sketcher.Constraint("Horizontal", 4))
sketch9.addConstraint(Sketcher.Constraint("Horizontal", 7))
sketch9.addConstraint(Sketcher.Constraint("Vertical", 8))
sketch9.addConstraint(Sketcher.Constraint("Horizontal", 9))
sketch9.addConstraint(Sketcher.Constraint("Horizontal", 12))
sketch9.addConstraint(Sketcher.Constraint("Vertical", 13))
sketch9.addConstraint(Sketcher.Constraint("Horizontal", 14))
sketch9.addConstraint(Sketcher.Constraint("Parallel", 0, 5))
sketch9.addConstraint(Sketcher.Constraint("Parallel", 1, 6))
sketch9.addConstraint(Sketcher.Constraint("Parallel", 5, 10))
sketch9.addConstraint(Sketcher.Constraint("Parallel", 6, 11))
sketch9.addConstraint(Sketcher.Constraint("Vertical", 1, 2, 4, 2))
sketch9.addConstraint(Sketcher.Constraint("Vertical", 0, 2, 5, 2))
sketch9.addConstraint(Sketcher.Constraint("Vertical", 4, 2, 6, 2))
sketch9.addConstraint(Sketcher.Constraint("Vertical", 3, 2, 7, 2))
sketch9.addConstraint(Sketcher.Constraint("Vertical", 6, 2, 9, 2))
sketch9.addConstraint(Sketcher.Constraint("Vertical", 5, 2, 10, 2))
sketch9.addConstraint(Sketcher.Constraint("Vertical", 9, 2, 11, 2))
sketch9.addConstraint(Sketcher.Constraint("Vertical", 8, 2, 12, 2))
sketch9.addConstraint(Sketcher.Constraint("Vertical", 11, 2, 14, 2))
sketch9.addConstraint(Sketcher.Constraint("Equal", 0, 1))
sketch9.addConstraint(Sketcher.Constraint("DistanceX", 2, 1, 2, 2, Q("1 mm")))
sketch9.addConstraint(Sketcher.Constraint("DistanceY", 3, 2, 3, 1, Q("1.2 mm")))
sketch9.addConstraint(Sketcher.Constraint("DistanceX", 0, 2, 1, 2, Q("1 mm")))
sketch9.addConstraint(Sketcher.Constraint("DistanceX", -1, 1, 0, 2, Q("4.5 mm")))
sketch9.addConstraint(Sketcher.Constraint("DistanceY", 1, 2, 5, 2, Q("0.9 mm")))
sketch9.addConstraint(Sketcher.Constraint("DistanceY", 6, 2, 10, 2, Q("0.9 mm")))
sketch9.addConstraint(Sketcher.Constraint("DistanceY", -1, 1, 0, 2, Q("1.725 mm")))
revolution8 = body.newObject("PartDesign::Revolution", "Revolution007")
revolution8.Profile = sketch9
revolution8.ReferenceAxis = (sketch9, ["V_Axis"])
revolution8.Angle = 15

sketch10 = body.newObject("Sketcher::SketchObject", "Sketch009")
sketch10.AttachmentSupport = (doc.getObject("YZ_Plane"), [""])
sketch10.MapMode = "FlatFace"
add_polygon(sketch10, [(5.5, 1.1), (4.5, 1.7), (5.5, 2.3), (6.5, 2.3), (6.5, 1.1)])
add_polygon(sketch10, [(5.5, 2.6), (4.5, 3.2), (5.5, 3.8), (6.5, 3.8), (6.5, 2.6)])
add_polygon(sketch10, [(5.5, 4.1), (4.5, 4.7), (5.5, 5.3), (6.5, 5.3), (6.5, 4.1)])
sketch10.addConstraint(Sketcher.Constraint("Horizontal", 2))
sketch10.addConstraint(Sketcher.Constraint("Vertical", 3))
sketch10.addConstraint(Sketcher.Constraint("Horizontal", 4))
sketch10.addConstraint(Sketcher.Constraint("Horizontal", 7))
sketch10.addConstraint(Sketcher.Constraint("Vertical", 8))
sketch10.addConstraint(Sketcher.Constraint("Horizontal", 9))
sketch10.addConstraint(Sketcher.Constraint("Horizontal", 12))
sketch10.addConstraint(Sketcher.Constraint("Vertical", 13))
sketch10.addConstraint(Sketcher.Constraint("Horizontal", 14))
sketch10.addConstraint(Sketcher.Constraint("Parallel", 0, 5))
sketch10.addConstraint(Sketcher.Constraint("Parallel", 1, 6))
sketch10.addConstraint(Sketcher.Constraint("Parallel", 5, 10))
sketch10.addConstraint(Sketcher.Constraint("Parallel", 6, 11))
sketch10.addConstraint(Sketcher.Constraint("Vertical", 1, 2, 4, 2))
sketch10.addConstraint(Sketcher.Constraint("Vertical", 0, 2, 5, 2))
sketch10.addConstraint(Sketcher.Constraint("Vertical", 4, 2, 6, 2))
sketch10.addConstraint(Sketcher.Constraint("Vertical", 3, 2, 7, 2))
sketch10.addConstraint(Sketcher.Constraint("Vertical", 6, 2, 9, 2))
sketch10.addConstraint(Sketcher.Constraint("Vertical", 5, 2, 10, 2))
sketch10.addConstraint(Sketcher.Constraint("Vertical", 9, 2, 11, 2))
sketch10.addConstraint(Sketcher.Constraint("Vertical", 8, 2, 12, 2))
sketch10.addConstraint(Sketcher.Constraint("Vertical", 11, 2, 14, 2))
sketch10.addConstraint(Sketcher.Constraint("Equal", 0, 1))
sketch10.addConstraint(Sketcher.Constraint("DistanceX", 2, 1, 2, 2, Q("1 mm")))
sketch10.addConstraint(Sketcher.Constraint("DistanceY", 3, 2, 3, 1, Q("1.2 mm")))
sketch10.addConstraint(Sketcher.Constraint("DistanceX", 0, 2, 1, 2, Q("1 mm")))
sketch10.addConstraint(Sketcher.Constraint("DistanceX", -1, 1, 0, 2, Q("4.5 mm")))
sketch10.addConstraint(Sketcher.Constraint("DistanceY", 1, 2, 5, 2, Q("0.9 mm")))
sketch10.addConstraint(Sketcher.Constraint("DistanceY", 6, 2, 10, 2, Q("0.9 mm")))
sketch10.addConstraint(Sketcher.Constraint("DistanceY", -1, 1, 0, 2, Q("1.725 mm")))
revolution9 = body.newObject("PartDesign::Revolution", "Revolution008")
revolution9.Profile = sketch10
revolution9.ReferenceAxis = (sketch10, ["V_Axis"])
revolution9.Angle = 15
revolution9.Reversed = True

doc.recompute()
